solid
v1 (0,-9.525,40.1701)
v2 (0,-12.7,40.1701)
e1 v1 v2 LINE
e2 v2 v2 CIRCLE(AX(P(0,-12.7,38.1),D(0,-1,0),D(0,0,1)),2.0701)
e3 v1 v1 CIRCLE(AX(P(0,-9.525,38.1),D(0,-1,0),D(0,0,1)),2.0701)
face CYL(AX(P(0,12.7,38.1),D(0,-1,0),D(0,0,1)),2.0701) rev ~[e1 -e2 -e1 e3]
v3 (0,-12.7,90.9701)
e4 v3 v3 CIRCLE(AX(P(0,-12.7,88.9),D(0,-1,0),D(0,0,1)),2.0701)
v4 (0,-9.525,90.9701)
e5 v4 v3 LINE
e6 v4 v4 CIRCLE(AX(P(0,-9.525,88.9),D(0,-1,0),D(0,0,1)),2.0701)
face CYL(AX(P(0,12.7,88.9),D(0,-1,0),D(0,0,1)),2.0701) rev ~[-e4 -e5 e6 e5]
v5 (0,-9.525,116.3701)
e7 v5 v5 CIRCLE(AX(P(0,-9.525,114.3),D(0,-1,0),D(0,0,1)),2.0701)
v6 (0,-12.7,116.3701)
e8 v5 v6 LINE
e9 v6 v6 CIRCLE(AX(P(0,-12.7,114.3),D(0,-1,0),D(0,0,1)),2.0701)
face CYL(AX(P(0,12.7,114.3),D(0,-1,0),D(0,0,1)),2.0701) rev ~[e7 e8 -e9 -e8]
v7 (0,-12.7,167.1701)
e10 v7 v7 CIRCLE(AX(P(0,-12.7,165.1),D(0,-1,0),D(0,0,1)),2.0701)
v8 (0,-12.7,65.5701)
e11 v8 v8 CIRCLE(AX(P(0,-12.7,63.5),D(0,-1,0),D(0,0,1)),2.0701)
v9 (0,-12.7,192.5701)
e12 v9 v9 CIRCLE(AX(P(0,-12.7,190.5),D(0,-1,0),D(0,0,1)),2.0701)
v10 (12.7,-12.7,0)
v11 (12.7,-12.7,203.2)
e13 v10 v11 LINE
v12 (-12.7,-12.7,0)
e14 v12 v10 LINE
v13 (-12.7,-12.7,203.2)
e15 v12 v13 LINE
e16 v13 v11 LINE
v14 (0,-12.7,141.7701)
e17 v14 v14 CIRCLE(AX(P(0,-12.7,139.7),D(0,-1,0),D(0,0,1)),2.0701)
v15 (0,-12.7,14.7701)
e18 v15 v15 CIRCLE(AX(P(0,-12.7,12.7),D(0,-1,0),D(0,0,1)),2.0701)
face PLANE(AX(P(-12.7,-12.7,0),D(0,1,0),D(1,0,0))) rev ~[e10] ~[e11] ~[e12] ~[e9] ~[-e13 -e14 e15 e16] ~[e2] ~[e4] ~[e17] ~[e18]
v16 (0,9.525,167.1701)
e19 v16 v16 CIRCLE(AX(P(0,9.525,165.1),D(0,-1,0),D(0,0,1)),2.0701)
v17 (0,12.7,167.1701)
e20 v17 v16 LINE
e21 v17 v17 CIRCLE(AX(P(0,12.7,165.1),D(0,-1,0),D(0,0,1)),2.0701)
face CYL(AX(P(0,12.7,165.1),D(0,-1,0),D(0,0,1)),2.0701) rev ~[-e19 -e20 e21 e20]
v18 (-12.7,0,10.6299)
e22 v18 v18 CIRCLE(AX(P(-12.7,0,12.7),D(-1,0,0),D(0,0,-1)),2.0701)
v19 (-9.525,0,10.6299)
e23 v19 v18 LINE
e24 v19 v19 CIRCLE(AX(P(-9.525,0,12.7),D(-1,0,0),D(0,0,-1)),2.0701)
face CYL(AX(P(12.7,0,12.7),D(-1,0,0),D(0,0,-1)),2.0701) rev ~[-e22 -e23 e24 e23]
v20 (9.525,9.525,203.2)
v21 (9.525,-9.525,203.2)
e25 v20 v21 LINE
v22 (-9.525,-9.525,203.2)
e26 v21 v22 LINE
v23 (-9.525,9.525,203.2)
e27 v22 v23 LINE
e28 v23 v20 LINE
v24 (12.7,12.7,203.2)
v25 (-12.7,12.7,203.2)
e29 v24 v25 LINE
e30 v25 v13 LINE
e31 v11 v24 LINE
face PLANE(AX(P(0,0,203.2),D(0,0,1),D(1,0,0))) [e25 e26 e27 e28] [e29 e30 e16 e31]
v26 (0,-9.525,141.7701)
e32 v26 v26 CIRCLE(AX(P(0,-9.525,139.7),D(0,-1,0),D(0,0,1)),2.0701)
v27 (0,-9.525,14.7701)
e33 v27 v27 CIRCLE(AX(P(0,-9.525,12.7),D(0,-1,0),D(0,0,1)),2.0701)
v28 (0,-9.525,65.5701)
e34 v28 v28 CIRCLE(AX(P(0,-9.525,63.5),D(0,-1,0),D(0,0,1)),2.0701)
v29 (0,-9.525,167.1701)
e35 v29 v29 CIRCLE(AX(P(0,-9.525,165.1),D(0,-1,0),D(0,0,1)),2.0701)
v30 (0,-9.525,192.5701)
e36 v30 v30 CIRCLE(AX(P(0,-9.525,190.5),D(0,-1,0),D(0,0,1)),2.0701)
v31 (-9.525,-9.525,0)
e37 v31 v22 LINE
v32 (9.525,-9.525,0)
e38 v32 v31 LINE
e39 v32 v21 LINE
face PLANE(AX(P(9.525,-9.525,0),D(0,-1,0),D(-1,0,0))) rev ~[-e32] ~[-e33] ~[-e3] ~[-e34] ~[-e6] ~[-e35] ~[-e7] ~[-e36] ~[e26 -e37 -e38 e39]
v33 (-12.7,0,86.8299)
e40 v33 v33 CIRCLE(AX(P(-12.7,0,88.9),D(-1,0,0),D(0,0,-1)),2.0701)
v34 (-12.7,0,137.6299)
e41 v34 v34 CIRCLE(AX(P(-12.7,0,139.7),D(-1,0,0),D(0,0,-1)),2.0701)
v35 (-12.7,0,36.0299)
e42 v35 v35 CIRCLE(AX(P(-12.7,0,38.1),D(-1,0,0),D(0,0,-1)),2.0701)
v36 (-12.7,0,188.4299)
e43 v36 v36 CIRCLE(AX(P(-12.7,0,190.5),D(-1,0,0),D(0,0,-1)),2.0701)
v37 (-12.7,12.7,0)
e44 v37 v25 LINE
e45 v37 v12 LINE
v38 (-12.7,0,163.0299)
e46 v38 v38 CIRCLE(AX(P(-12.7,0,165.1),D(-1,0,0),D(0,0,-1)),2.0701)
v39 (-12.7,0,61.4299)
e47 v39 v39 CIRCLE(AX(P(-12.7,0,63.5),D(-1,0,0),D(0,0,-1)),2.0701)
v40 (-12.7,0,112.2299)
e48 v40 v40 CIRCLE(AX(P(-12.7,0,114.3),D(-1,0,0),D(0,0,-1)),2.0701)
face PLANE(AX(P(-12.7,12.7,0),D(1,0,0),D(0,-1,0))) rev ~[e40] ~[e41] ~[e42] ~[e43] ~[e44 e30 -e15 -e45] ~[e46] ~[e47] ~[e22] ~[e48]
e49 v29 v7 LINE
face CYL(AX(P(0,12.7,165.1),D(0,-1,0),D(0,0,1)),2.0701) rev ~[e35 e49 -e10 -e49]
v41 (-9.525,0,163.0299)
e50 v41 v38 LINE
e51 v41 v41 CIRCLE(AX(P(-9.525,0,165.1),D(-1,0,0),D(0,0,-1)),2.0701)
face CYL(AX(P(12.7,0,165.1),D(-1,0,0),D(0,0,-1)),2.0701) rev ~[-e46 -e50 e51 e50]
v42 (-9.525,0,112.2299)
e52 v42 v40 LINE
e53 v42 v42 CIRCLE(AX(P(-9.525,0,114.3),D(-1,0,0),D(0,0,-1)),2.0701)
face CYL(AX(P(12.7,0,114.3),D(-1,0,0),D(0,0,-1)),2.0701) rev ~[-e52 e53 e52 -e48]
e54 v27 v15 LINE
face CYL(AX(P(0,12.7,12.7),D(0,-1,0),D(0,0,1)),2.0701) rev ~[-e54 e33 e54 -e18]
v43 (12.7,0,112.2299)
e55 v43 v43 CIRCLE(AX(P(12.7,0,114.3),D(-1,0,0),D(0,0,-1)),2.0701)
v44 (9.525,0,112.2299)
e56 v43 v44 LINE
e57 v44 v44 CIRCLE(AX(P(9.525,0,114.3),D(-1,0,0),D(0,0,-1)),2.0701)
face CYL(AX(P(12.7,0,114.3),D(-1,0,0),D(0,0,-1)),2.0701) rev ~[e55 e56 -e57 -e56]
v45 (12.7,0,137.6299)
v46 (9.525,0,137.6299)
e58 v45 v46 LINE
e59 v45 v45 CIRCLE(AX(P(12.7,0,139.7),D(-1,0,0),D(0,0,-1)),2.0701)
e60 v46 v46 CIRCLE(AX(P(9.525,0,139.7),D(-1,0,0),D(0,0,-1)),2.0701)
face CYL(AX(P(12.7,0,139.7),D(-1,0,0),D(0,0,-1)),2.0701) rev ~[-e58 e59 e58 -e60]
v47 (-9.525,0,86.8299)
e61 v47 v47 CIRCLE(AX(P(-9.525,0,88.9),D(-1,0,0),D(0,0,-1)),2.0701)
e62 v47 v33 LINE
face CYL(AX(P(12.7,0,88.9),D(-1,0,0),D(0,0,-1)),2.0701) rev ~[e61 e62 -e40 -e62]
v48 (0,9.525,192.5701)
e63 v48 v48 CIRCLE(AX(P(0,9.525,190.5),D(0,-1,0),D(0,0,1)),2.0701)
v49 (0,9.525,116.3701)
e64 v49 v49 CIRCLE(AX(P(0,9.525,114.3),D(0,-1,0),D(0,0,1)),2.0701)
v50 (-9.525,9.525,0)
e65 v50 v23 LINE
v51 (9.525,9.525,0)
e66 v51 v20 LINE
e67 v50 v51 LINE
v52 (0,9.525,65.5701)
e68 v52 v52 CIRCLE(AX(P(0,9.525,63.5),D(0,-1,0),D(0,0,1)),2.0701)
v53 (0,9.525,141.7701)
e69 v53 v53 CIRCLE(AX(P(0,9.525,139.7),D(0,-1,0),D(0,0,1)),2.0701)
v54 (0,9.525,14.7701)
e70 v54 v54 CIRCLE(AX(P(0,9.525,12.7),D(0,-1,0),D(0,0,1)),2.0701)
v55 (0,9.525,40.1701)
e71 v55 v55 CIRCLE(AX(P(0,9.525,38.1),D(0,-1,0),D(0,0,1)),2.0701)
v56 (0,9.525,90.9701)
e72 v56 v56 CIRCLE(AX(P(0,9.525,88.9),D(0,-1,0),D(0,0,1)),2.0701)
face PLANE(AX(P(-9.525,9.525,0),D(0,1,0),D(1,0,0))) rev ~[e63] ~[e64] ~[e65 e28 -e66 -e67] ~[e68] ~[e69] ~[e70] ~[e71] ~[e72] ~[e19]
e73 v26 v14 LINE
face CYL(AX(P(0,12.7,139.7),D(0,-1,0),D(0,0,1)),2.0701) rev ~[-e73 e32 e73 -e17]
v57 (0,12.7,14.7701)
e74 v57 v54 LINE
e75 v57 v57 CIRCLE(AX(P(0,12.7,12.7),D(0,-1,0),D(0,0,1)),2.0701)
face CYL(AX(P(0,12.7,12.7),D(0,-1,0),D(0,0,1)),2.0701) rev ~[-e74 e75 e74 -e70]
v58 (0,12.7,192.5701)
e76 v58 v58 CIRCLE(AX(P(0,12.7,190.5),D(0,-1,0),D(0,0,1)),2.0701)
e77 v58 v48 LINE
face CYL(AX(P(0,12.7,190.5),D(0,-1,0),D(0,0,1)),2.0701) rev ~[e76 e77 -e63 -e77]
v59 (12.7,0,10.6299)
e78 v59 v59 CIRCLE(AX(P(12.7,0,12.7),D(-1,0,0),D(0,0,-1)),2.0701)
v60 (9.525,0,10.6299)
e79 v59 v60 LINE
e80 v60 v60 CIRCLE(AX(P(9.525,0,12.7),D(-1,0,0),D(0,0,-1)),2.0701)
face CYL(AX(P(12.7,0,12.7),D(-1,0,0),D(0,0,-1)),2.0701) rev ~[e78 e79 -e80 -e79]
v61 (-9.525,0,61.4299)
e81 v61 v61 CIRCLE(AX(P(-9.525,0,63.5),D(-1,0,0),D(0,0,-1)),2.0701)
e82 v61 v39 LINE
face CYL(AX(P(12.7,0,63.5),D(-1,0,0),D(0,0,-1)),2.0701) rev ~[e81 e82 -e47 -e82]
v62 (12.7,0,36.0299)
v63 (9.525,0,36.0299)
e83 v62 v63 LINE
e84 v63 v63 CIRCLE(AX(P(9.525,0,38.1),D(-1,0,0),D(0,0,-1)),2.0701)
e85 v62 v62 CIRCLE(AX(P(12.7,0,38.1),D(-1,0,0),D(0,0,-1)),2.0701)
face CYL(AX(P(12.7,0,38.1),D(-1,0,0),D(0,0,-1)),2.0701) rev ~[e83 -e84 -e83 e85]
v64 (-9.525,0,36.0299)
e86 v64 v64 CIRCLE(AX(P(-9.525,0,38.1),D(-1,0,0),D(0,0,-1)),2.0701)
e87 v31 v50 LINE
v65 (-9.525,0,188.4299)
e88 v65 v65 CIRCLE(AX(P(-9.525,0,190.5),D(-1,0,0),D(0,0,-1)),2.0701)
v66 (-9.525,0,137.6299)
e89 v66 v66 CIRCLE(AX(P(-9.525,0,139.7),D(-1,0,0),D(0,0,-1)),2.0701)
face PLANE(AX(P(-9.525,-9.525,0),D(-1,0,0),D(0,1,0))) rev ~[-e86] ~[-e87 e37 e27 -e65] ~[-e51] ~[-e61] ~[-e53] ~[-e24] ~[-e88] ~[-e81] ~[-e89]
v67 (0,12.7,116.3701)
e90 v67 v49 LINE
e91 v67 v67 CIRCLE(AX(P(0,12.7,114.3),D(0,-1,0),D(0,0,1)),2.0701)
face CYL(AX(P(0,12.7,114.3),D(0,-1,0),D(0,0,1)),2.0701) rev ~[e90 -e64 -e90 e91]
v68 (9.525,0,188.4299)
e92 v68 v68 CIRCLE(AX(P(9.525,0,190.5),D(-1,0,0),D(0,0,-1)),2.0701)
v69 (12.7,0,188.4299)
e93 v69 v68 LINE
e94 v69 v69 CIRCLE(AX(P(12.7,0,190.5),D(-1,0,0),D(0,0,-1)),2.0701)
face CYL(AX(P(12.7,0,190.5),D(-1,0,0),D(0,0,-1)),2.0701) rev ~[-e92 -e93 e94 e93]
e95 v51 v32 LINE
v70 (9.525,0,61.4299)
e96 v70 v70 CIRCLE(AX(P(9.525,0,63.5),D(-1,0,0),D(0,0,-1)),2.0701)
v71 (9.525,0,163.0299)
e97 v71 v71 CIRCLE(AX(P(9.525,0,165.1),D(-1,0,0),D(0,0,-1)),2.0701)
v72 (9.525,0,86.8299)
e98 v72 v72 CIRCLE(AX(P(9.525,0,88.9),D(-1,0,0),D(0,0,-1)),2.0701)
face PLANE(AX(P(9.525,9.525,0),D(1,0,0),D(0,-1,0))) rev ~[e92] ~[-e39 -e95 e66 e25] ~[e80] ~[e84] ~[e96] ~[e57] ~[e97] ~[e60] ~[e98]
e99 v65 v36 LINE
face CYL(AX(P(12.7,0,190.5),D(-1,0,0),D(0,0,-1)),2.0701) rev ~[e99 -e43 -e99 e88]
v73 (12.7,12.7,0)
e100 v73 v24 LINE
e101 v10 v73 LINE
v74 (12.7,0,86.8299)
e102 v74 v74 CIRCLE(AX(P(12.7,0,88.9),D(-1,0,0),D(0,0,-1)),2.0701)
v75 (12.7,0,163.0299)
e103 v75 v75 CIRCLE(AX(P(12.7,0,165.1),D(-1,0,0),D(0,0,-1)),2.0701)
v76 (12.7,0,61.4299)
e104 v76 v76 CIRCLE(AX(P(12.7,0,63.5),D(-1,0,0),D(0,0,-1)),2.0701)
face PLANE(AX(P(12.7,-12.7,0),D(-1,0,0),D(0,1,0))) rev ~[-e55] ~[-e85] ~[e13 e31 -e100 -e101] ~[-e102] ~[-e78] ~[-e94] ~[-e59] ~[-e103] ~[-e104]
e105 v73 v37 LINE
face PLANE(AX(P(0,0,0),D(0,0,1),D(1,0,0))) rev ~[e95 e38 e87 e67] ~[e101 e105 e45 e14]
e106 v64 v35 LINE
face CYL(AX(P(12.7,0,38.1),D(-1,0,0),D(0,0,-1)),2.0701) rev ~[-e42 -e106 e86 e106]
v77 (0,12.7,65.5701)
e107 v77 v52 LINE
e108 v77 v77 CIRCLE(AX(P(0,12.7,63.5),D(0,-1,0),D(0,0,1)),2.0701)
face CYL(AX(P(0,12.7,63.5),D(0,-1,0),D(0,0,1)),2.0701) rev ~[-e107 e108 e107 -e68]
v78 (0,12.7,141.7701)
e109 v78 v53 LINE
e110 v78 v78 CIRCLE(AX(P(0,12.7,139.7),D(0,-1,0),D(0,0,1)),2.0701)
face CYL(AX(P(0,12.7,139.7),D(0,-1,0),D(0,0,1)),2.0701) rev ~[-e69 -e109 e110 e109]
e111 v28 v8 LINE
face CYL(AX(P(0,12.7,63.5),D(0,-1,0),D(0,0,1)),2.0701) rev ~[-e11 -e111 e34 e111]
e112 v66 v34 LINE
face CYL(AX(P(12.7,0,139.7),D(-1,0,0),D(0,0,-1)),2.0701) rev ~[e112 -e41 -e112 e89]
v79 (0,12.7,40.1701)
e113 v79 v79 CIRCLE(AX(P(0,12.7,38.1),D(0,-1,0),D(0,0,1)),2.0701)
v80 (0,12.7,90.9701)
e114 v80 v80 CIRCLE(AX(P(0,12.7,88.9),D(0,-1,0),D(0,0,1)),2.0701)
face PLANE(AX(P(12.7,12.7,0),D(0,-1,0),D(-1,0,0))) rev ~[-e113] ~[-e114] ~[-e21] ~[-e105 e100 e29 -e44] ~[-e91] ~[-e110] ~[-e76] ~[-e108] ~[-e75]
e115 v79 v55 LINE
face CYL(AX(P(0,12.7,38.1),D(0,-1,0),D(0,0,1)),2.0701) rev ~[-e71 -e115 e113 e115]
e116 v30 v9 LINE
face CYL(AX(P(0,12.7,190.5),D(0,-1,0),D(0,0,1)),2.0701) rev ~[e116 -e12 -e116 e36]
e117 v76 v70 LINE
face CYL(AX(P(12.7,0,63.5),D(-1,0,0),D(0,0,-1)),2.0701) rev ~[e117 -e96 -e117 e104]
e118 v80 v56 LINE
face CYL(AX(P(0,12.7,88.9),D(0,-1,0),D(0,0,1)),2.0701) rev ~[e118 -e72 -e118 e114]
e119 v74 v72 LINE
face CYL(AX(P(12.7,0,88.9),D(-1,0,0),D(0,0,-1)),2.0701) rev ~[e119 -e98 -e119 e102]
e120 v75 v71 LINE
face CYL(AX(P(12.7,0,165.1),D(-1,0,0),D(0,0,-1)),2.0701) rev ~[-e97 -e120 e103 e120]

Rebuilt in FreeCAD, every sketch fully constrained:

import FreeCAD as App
import Part
import Sketcher
Q = App.Units.Quantity


def add_polygon(sketch, points):
    """Adds a closed chain of lines whose ends are joined by coincident constraints."""
    first, n = sketch.GeometryCount, len(points)
    for a, b in zip(points, points[1:] + points[:1]):
        sketch.addGeometry(Part.LineSegment(App.Vector(*a, 0), App.Vector(*b, 0)), False)
    for i in range(n):
        sketch.addConstraint(Sketcher.Constraint("Coincident", first + i, 2, first + (i + 1) % n, 1))

doc = App.newDocument("Part")
params = doc.addObject("Spreadsheet::Sheet", "Params")
for row, (alias, value) in enumerate([
    ("sketch1_width", "1 in"),
    ("pad1_length", "8 in"),
    ("sketch2_diameter", "0.163 in"),
    ("hole_diameter", "0.163 in"),
    ("sketch3_diameter", "0.163 in"),
    ("hole2_diameter", "0.163 in"),
], start=1):
    params.set(f"A{row}", alias)
    params.set(f"B{row}", "=" + value)
    params.setAlias(f"B{row}", alias)

body = doc.addObject("PartDesign::Body", "Body")

# Sketch on XY plane
sketch1 = body.newObject("Sketcher::SketchObject", "Sketch")
sketch1.AttachmentSupport = (doc.getObject("XY_Plane"), [""])
sketch1.MapMode = "FlatFace"
add_polygon(sketch1, [(-12.7, 12.7), (-12.7, -12.7), (12.7, -12.7), (12.7, 12.7)])  # lines 0-3
add_polygon(sketch1, [(9.525, 9.525), (9.525, -9.525), (-9.525, -9.525), (-9.525, 9.525)])  # lines 4-7
sketch1.addConstraint(Sketcher.Constraint("Vertical", 0))
sketch1.addConstraint(Sketcher.Constraint("Horizontal", 1))
sketch1.addConstraint(Sketcher.Constraint("Vertical", 2))
sketch1.addConstraint(Sketcher.Constraint("Horizontal", 3))
sketch1.addConstraint(Sketcher.Constraint("Vertical", 4))
sketch1.addConstraint(Sketcher.Constraint("Horizontal", 5))
sketch1.addConstraint(Sketcher.Constraint("Vertical", 6))
sketch1.addConstraint(Sketcher.Constraint("Horizontal", 7))
sketch1.addConstraint(Sketcher.Constraint("Symmetric", 0, 2, 2, 2, -1, 1))
sketch1.addConstraint(Sketcher.Constraint("Symmetric", 4, 2, 6, 2, -1, 1))
sketch1.addConstraint(Sketcher.Constraint("Equal", 3, 0))
sketch1.addConstraint(Sketcher.Constraint("Equal", 7, 4))
sketch1.addConstraint(Sketcher.Constraint("DistanceX", 1, 1, 1, 2, Q("1 in")))
sketch1.addConstraint(Sketcher.Constraint("DistanceX", 4, 2, 1, 2, Q("0.125 in")))
sketch1.setExpression("Constraints[20]", "Params.sketch1_width")
pad1 = body.newObject("PartDesign::Pad", "Pad")
pad1.Profile = sketch1
pad1.setExpression("Length", "Params.pad1_length")

# Sketch on YZ plane
sketch2 = body.newObject("Sketcher::SketchObject", "Sketch001")
sketch2.AttachmentSupport = (doc.getObject("YZ_Plane"), [""])
sketch2.MapMode = "FlatFace"
sketch2.AttachmentOffset = App.Placement(App.Vector(0, 0, 0.5 * 25.4), App.Rotation())
sketch2.addGeometry(Part.Circle(App.Vector(0, 12.7, 0), App.Vector(0, 0, 1), 2.0701), False)
sketch2.addGeometry(Part.Circle(App.Vector(0, 38.1, 0), App.Vector(0, 0, 1), 2.0701), False)
sketch2.addGeometry(Part.Circle(App.Vector(0, 63.5, 0), App.Vector(0, 0, 1), 2.0701), False)
sketch2.addGeometry(Part.Circle(App.Vector(0, 88.9, 0), App.Vector(0, 0, 1), 2.0701), False)
sketch2.addGeometry(Part.Circle(App.Vector(0, 114.3, 0), App.Vector(0, 0, 1), 2.0701), False)
sketch2.addGeometry(Part.Circle(App.Vector(0, 139.7, 0), App.Vector(0, 0, 1), 2.0701), False)
sketch2.addGeometry(Part.Circle(App.Vector(0, 165.1, 0), App.Vector(0, 0, 1), 2.0701), False)
sketch2.addGeometry(Part.Circle(App.Vector(0, 190.5, 0), App.Vector(0, 0, 1), 2.0701), False)
sketch2.addConstraint(Sketcher.Constraint("Equal", 0, 1))
sketch2.addConstraint(Sketcher.Constraint("Equal", 1, 2))
sketch2.addConstraint(Sketcher.Constraint("Equal", 2, 3))
sketch2.addConstraint(Sketcher.Constraint("Equal", 3, 4))
sketch2.addConstraint(Sketcher.Constraint("Equal", 4, 5))
sketch2.addConstraint(Sketcher.Constraint("Equal", 5, 6))
sketch2.addConstraint(Sketcher.Constraint("Equal", 6, 7))
sketch2.addConstraint(Sketcher.Constraint("PointOnObject", 0, 3, -2))
sketch2.addConstraint(Sketcher.Constraint("PointOnObject", 1, 3, -2))
sketch2.addConstraint(Sketcher.Constraint("PointOnObject", 2, 3, -2))
sketch2.addConstraint(Sketcher.Constraint("PointOnObject", 3, 3, -2))
sketch2.addConstraint(Sketcher.Constraint("PointOnObject", 4, 3, -2))
sketch2.addConstraint(Sketcher.Constraint("PointOnObject", 5, 3, -2))
sketch2.addConstraint(Sketcher.Constraint("PointOnObject", 6, 3, -2))
sketch2.addConstraint(Sketcher.Constraint("PointOnObject", 7, 3, -2))
sketch2.addConstraint(Sketcher.Constraint("Diameter", 0, Q("0.163 in")))
sketch2.addConstraint(Sketcher.Constraint("DistanceY", 0, 3, 1, 3, Q("1 in")))
sketch2.addConstraint(Sketcher.Constraint("DistanceY", 1, 3, 2, 3, Q("1 in")))
sketch2.addConstraint(Sketcher.Constraint("DistanceY", 2, 3, 3, 3, Q("1 in")))
sketch2.addConstraint(Sketcher.Constraint("DistanceY", 3, 3, 4, 3, Q("1 in")))
sketch2.addConstraint(Sketcher.Constraint("DistanceY", 4, 3, 5, 3, Q("1 in")))
sketch2.addConstraint(Sketcher.Constraint("DistanceY", 5, 3, 6, 3, Q("1 in")))
sketch2.addConstraint(Sketcher.Constraint("DistanceY", 6, 3, 7, 3, Q("1 in")))
sketch2.addConstraint(Sketcher.Constraint("DistanceY", -1, 1, 0, 3, Q("0.5 in")))
sketch2.setExpression("Constraints[15]", "Params.sketch2_diameter")
doc.recompute()
hole = body.newObject("PartDesign::Hole", "Hole")
hole.Profile = sketch2
hole.ThreadType = "None"
hole.setExpression("Diameter", "Params.hole_diameter")
hole.DepthType = "ThroughAll"

# Sketch on XZ plane
sketch3 = body.newObject("Sketcher::SketchObject", "Sketch002")
sketch3.AttachmentSupport = (doc.getObject("XZ_Plane"), [""])
sketch3.MapMode = "FlatFace"
sketch3.AttachmentOffset = App.Placement(App.Vector(0, 0, -0.5 * 25.4), App.Rotation())
sketch3.addGeometry(Part.Circle(App.Vector(0, 12.7, 0), App.Vector(0, 0, 1), 2.0701), False)
sketch3.addGeometry(Part.Circle(App.Vector(0, 38.1, 0), App.Vector(0, 0, 1), 2.0701), False)
sketch3.addGeometry(Part.Circle(App.Vector(0, 63.5, 0), App.Vector(0, 0, 1), 2.0701), False)
sketch3.addGeometry(Part.Circle(App.Vector(0, 88.9, 0), App.Vector(0, 0, 1), 2.0701), False)
sketch3.addGeometry(Part.Circle(App.Vector(0, 114.3, 0), App.Vector(0, 0, 1), 2.0701), False)
sketch3.addGeometry(Part.Circle(App.Vector(0, 139.7, 0), App.Vector(0, 0, 1), 2.0701), False)
sketch3.addGeometry(Part.Circle(App.Vector(0, 165.1, 0), App.Vector(0, 0, 1), 2.0701), False)
sketch3.addGeometry(Part.Circle(App.Vector(0, 190.5, 0), App.Vector(0, 0, 1), 2.0701), False)
sketch3.addConstraint(Sketcher.Constraint("Equal", 0, 1))
sketch3.addConstraint(Sketcher.Constraint("Equal", 1, 2))
sketch3.addConstraint(Sketcher.Constraint("Equal", 2, 3))
sketch3.addConstraint(Sketcher.Constraint("Equal", 3, 4))
sketch3.addConstraint(Sketcher.Constraint("Equal", 4, 5))
sketch3.addConstraint(Sketcher.Constraint("Equal", 5, 6))
sketch3.addConstraint(Sketcher.Constraint("Equal", 6, 7))
sketch3.addConstraint(Sketcher.Constraint("PointOnObject", 0, 3, -2))
sketch3.addConstraint(Sketcher.Constraint("PointOnObject", 1, 3, -2))
sketch3.addConstraint(Sketcher.Constraint("PointOnObject", 2, 3, -2))
sketch3.addConstraint(Sketcher.Constraint("PointOnObject", 3, 3, -2))
sketch3.addConstraint(Sketcher.Constraint("PointOnObject", 4, 3, -2))
sketch3.addConstraint(Sketcher.Constraint("PointOnObject", 5, 3, -2))
sketch3.addConstraint(Sketcher.Constraint("PointOnObject", 6, 3, -2))
sketch3.addConstraint(Sketcher.Constraint("PointOnObject", 7, 3, -2))
sketch3.addConstraint(Sketcher.Constraint("Diameter", 0, Q("0.163 in")))
sketch3.addConstraint(Sketcher.Constraint("DistanceY", 0, 3, 1, 3, Q("1 in")))
sketch3.addConstraint(Sketcher.Constraint("DistanceY", 1, 3, 2, 3, Q("1 in")))
sketch3.addConstraint(Sketcher.Constraint("DistanceY", 2, 3, 3, 3, Q("1 in")))
sketch3.addConstraint(Sketcher.Constraint("DistanceY", 3, 3, 4, 3, Q("1 in")))
sketch3.addConstraint(Sketcher.Constraint("DistanceY", 4, 3, 5, 3, Q("1 in")))
sketch3.addConstraint(Sketcher.Constraint("DistanceY", 5, 3, 6, 3, Q("1 in")))
sketch3.addConstraint(Sketcher.Constraint("DistanceY", 6, 3, 7, 3, Q("1 in")))
sketch3.addConstraint(Sketcher.Constraint("DistanceY", -1, 1, 0, 3, Q("0.5 in")))
sketch3.setExpression("Constraints[15]", "Params.sketch3_diameter")
doc.recompute()
hole2 = body.newObject("PartDesign::Hole", "Hole001")
hole2.Profile = sketch3
hole2.ThreadType = "None"
hole2.setExpression("Diameter", "Params.hole2_diameter")
hole2.DepthType = "ThroughAll"
hole2.Reversed = True

doc.recompute()
